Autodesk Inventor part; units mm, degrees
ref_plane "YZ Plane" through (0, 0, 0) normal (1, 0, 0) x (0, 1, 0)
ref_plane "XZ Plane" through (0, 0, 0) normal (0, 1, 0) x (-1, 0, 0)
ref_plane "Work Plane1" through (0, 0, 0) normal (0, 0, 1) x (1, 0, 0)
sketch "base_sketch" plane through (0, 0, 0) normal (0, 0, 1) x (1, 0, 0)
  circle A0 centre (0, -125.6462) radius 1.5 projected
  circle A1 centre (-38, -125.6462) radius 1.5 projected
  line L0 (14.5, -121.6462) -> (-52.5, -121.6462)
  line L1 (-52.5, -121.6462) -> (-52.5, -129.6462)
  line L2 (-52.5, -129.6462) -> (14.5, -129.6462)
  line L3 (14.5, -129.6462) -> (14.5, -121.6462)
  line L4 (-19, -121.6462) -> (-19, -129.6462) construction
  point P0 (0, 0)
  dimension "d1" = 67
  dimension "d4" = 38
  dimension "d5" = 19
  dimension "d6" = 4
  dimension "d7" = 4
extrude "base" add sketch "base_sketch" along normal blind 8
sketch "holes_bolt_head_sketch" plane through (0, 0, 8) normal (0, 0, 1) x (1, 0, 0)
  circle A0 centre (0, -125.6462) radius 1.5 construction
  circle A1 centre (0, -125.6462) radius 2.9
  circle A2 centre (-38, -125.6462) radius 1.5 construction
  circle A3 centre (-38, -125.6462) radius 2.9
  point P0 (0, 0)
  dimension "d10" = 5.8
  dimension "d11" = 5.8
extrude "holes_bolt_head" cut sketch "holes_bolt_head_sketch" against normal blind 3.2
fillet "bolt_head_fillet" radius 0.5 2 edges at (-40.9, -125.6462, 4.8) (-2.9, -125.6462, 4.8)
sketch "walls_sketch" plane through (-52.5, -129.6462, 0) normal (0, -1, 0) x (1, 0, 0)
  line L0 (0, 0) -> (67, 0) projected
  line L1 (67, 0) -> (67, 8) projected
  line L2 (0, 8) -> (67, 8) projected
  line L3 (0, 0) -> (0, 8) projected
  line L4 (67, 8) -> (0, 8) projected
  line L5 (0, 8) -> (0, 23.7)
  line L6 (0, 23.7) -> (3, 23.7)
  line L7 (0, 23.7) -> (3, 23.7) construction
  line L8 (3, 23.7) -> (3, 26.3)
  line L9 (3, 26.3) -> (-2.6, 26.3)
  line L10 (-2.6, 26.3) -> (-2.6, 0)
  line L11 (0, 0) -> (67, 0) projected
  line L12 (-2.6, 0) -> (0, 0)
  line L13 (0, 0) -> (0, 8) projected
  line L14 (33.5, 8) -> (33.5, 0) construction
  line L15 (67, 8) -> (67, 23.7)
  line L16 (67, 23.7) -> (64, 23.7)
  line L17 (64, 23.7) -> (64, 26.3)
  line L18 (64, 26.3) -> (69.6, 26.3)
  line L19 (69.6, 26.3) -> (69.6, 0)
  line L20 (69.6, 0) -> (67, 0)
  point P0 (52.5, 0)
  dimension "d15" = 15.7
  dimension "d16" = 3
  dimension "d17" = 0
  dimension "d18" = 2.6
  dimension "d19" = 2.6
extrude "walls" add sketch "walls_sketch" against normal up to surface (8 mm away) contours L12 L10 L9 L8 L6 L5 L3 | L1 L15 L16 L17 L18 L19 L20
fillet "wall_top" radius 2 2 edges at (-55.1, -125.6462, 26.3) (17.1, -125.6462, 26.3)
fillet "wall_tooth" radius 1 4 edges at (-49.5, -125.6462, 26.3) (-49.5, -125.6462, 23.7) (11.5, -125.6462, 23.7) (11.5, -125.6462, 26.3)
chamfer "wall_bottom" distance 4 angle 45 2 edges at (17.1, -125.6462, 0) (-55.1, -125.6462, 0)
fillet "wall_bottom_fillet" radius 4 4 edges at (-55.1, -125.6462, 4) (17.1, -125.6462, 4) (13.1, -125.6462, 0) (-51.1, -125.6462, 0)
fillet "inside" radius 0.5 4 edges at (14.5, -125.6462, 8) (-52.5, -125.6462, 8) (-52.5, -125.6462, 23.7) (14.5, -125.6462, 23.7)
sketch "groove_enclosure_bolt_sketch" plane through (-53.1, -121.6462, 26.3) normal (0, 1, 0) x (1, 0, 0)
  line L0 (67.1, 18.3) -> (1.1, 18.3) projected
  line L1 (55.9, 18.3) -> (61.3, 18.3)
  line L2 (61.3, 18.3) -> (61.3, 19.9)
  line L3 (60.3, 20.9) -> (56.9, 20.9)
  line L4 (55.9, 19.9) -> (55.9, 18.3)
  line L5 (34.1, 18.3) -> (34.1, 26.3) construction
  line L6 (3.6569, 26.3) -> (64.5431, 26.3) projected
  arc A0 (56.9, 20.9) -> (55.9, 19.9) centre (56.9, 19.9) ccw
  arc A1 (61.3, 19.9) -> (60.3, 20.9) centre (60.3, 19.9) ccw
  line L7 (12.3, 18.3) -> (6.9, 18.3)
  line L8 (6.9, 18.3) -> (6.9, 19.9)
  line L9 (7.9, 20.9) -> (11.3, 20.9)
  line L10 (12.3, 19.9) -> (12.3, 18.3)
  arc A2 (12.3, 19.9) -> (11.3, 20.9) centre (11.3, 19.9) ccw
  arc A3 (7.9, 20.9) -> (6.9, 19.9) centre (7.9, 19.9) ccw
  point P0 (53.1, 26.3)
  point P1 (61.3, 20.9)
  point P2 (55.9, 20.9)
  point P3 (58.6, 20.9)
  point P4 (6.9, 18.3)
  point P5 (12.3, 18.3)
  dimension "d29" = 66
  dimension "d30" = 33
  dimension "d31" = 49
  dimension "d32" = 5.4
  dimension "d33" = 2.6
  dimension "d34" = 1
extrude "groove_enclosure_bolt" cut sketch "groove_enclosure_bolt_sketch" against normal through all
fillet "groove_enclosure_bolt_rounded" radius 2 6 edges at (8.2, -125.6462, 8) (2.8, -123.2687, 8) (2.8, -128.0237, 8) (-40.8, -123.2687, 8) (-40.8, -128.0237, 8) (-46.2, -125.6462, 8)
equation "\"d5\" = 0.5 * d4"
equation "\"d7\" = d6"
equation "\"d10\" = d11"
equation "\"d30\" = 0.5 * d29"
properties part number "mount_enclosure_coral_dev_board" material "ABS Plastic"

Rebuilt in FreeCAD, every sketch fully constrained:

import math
import FreeCAD as App
import Part
import Sketcher
from FreeCAD import Vector
Q = App.Units.Quantity


def edges_at(feature, points):
    """Names of the edges that pass closest to the given points."""
    edges = feature.Shape.Edges
    near = lambda p: min(range(len(edges)), key=lambda i: edges[i].distToShape(Part.Vertex(*p))[0])
    return sorted({f"Edge{near(p) + 1}" for p in points})


def add_polygon(sketch, points):
    """Adds a closed chain of lines whose ends are joined by coincident constraints."""
    first, n = sketch.GeometryCount, len(points)
    for a, b in zip(points, points[1:] + points[:1]):
        sketch.addGeometry(Part.LineSegment(App.Vector(*a, 0), App.Vector(*b, 0)), False)
    for i in range(n):
        sketch.addConstraint(Sketcher.Constraint("Coincident", first + i, 2, first + (i + 1) % n, 1))

doc = App.newDocument("Part")
body = doc.addObject("PartDesign::Body", "Body")

# Sketch on XY plane
sketch1 = body.newObject("Sketcher::SketchObject", "Sketch")
sketch1.AttachmentSupport = (doc.getObject("XY_Plane"), [""])
sketch1.MapMode = "FlatFace"
add_polygon(sketch1, [(14.5, -129.6), (14.5, -121.6), (-52.5, -121.6), (-52.5, -129.6)])  # lines 0-3
sketch1.addGeometry(Part.Circle(Vector(-38, -125.6, 0), Vector(0, 0, 1), 1.5), False)  # 4
sketch1.addGeometry(Part.Circle(Vector(0, -125.6, 0), Vector(0, 0, 1), 1.5), False)  # 5
sketch1.addConstraint([
    Sketcher.Constraint("Vertical", 0),
    Sketcher.Constraint("Horizontal", 1),
    Sketcher.Constraint("Vertical", 2),
    Sketcher.Constraint("Horizontal", 3),
    Sketcher.Constraint("Equal", 4, 5),
    Sketcher.Constraint("PointOnObject", 5, 3, -2),
    Sketcher.Constraint("Horizontal", 4, 3, 5, 3),
    Sketcher.Constraint("DistanceX", 1, 2, 1, 1, Q("67 mm")),
    Sketcher.Constraint("Diameter", 4, Q("3 mm")),
    Sketcher.Constraint("DistanceX", 4, 3, -1, 1, Q("38 mm")),
    Sketcher.Constraint("DistanceY", 5, 3, 0, 2, Q("4 mm")),
    Sketcher.Constraint("DistanceY", 2, 2, 4, 3, Q("4 mm")),
    Sketcher.Constraint("DistanceX", -1, 1, 0, 2, Q("14.5 mm")),
    Sketcher.Constraint("DistanceY", 4, 3, -1, 1, Q("125.6462 mm")),
])
pad1 = body.newObject("PartDesign::Pad", "Pad")
pad1.Profile = sketch1
pad1.Length = 8

# Sketch on XY plane
sketch2 = body.newObject("Sketcher::SketchObject", "Sketch001")
sketch2.AttachmentSupport = (doc.getObject("XY_Plane"), [""])
sketch2.MapMode = "FlatFace"
sketch2.AttachmentOffset = App.Placement(Vector(0, 0, 8), App.Rotation())
sketch2.addGeometry([
    Part.Circle(Vector(0, -125.6, 0), Vector(0, 0, 1), 2.9),
    Part.Circle(Vector(-38, -125.6, 0), Vector(0, 0, 1), 2.9),
], False)
sketch2.addConstraint([
    Sketcher.Constraint("Equal", 0, 1),
    Sketcher.Constraint("PointOnObject", 0, 3, -2),
    Sketcher.Constraint("Horizontal", 0, 3, 1, 3),
    Sketcher.Constraint("Diameter", 0, Q("5.8 mm")),
    Sketcher.Constraint("DistanceX", 1, 3, -1, 1, Q("38 mm")),
    Sketcher.Constraint("DistanceY", 0, 3, -1, 1, Q("125.6462 mm")),
])
pocket1 = body.newObject("PartDesign::Pocket", "Pocket")
pocket1.Profile = sketch2
pocket1.Length = 3.2
doc.recompute()

fillet = body.newObject("PartDesign::Fillet", "Fillet")
fillet.Base = (pocket1, edges_at(pocket1, [(-40.9, -125.646, 4.8), (-2.9, -125.646, 4.8)]))
fillet.Radius = 0.5

# Sketch on XZ plane
sketch3 = body.newObject("Sketcher::SketchObject", "Sketch002")
sketch3.AttachmentSupport = (doc.getObject("XZ_Plane"), [""])
sketch3.MapMode = "FlatFace"
sketch3.AttachmentOffset = App.Placement(Vector(0, 0, 129.6462), App.Rotation())
add_polygon(sketch3, [(-55.1, 0), (-52.5, 0), (-52.5, 23.7), (-49.5, 23.7), (-49.5, 26.3), (-55.1, 26.3)])  # lines 0-5
add_polygon(sketch3, [(14.5, 23.7), (14.5, 0), (17.1, 0), (17.1, 26.3), (11.5, 26.3), (11.5, 23.7)])  # lines 6-11
sketch3.addConstraint([
    Sketcher.Constraint("Horizontal", 0),
    Sketcher.Constraint("Vertical", 1),
    Sketcher.Constraint("Horizontal", 2),
    Sketcher.Constraint("Vertical", 3),
    Sketcher.Constraint("Horizontal", 4),
    Sketcher.Constraint("Vertical", 5),
    Sketcher.Constraint("Vertical", 6),
    Sketcher.Constraint("Horizontal", 7),
    Sketcher.Constraint("Vertical", 8),
    Sketcher.Constraint("Horizontal", 9),
    Sketcher.Constraint("Vertical", 10),
    Sketcher.Constraint("Horizontal", 11),
    Sketcher.Constraint("PointOnObject", 0, 2, -1),
    Sketcher.Constraint("PointOnObject", 6, 2, -1),
    Sketcher.Constraint("Horizontal", 4, 2, 8, 2),
    Sketcher.Constraint("Horizontal", 2, 2, 10, 2),
    Sketcher.Constraint("Equal", 0, 7),
    Sketcher.Constraint("Equal", 4, 9),
    Sketcher.Constraint("Equal", 7, 3),
    Sketcher.Constraint("DistanceX", 2, 1, 2, 2, Q("3 mm")),
    Sketcher.Constraint("DistanceX", 0, 1, 0, 2, Q("2.6 mm")),
    Sketcher.Constraint("DistanceY", 1, 1, 1, 2, Q("23.7 mm")),
    Sketcher.Constraint("DistanceX", 0, 2, 6, 2, Q("67 mm")),
    Sketcher.Constraint("DistanceX", 0, 2, -1, 1, Q("52.5 mm")),
])
pad2 = body.newObject("PartDesign::Pad", "Pad001")
pad2.Profile = sketch3
pad2.Length = 8
pad2.Reversed = True
doc.recompute()

fillet2 = body.newObject("PartDesign::Fillet", "Fillet001")
fillet2.Base = (pad2, edges_at(pad2, [(-55.1, -125.646, 26.3), (17.1, -125.646, 26.3)]))
fillet2.Radius = 2
doc.recompute()

fillet3 = body.newObject("PartDesign::Fillet", "Fillet002")
fillet3.Base = (fillet2, edges_at(fillet2, [
    (-49.5, -125.646, 26.3),
    (-49.5, -125.646, 23.7),
    (11.5, -125.646, 23.7),
    (11.5, -125.646, 26.3),
]))
fillet3.Radius = 1
doc.recompute()

chamfer = body.newObject("PartDesign::Chamfer", "Chamfer")
chamfer.Base = (fillet3, edges_at(fillet3, [(17.1, -125.646, 0), (-55.1, -125.646, 0)]))
chamfer.Size = 4
doc.recompute()

fillet4 = body.newObject("PartDesign::Fillet", "Fillet003")
fillet4.Base = (chamfer, edges_at(chamfer, [
    (-55.1, -125.646, 4),
    (17.1, -125.646, 4),
    (13.1, -125.646, 0),
    (-51.1, -125.646, 0),
]))
fillet4.Radius = 4
doc.recompute()

fillet5 = body.newObject("PartDesign::Fillet", "Fillet004")
fillet5.Base = (fillet4, edges_at(fillet4, [
    (14.5, -125.646, 8),
    (-52.5, -125.646, 8),
    (-52.5, -125.646, 23.7),
    (14.5, -125.646, 23.7),
]))
fillet5.Radius = 0.5

# Sketch on XZ plane
sketch4 = body.newObject("Sketcher::SketchObject", "Sketch003")
sketch4.AttachmentSupport = (doc.getObject("XZ_Plane"), [""])
sketch4.MapMode = "FlatFace"
sketch4.AttachmentOffset = App.Placement(Vector(0, 0, 121.6462), App.Rotation())
sketch4.addGeometry([
    Part.LineSegment(Vector(-46.2, 8, 0), Vector(-40.8, 8, 0)),  # 0
    Part.LineSegment(Vector(-40.8, 8, 0), Vector(-40.8, 6.4, 0)),  # 1
    Part.ArcOfCircle(Part.Circle(Vector(-41.8, 6.4, 0), Vector(0, 0, 1), 1), math.radians(-90), math.radians(0)),  # 2
    Part.LineSegment(Vector(-41.8, 5.4, 0), Vector(-45.2, 5.4, 0)),  # 3
    Part.ArcOfCircle(Part.Circle(Vector(-45.2, 6.4, 0), Vector(0, 0, 1), 1), math.radians(180), math.radians(270)),  # 4
    Part.LineSegment(Vector(-46.2, 6.4, 0), Vector(-46.2, 8, 0)),  # 5
    Part.LineSegment(Vector(2.8, 8, 0), Vector(8.2, 8, 0)),  # 6
    Part.LineSegment(Vector(8.2, 8, 0), Vector(8.2, 6.4, 0)),  # 7
    Part.ArcOfCircle(Part.Circle(Vector(7.2, 6.4, 0), Vector(0, 0, 1), 1), math.radians(-90), math.radians(0)),  # 8
    Part.LineSegment(Vector(7.2, 5.4, 0), Vector(3.8, 5.4, 0)),  # 9
    Part.ArcOfCircle(Part.Circle(Vector(3.8, 6.4, 0), Vector(0, 0, 1), 1), math.radians(180), math.radians(270)),  # 10
    Part.LineSegment(Vector(2.8, 6.4, 0), Vector(2.8, 8, 0)),  # 11
], False)
sketch4.addConstraint([
    Sketcher.Constraint("Coincident", 0, 2, 1, 1),
    Sketcher.Constraint("Tangent", 1, 2, 2, 2),
    Sketcher.Constraint("Tangent", 2, 1, 3, 1),
    Sketcher.Constraint("Tangent", 3, 2, 4, 2),
    Sketcher.Constraint("Tangent", 4, 1, 5, 1),
    Sketcher.Constraint("Coincident", 5, 2, 0, 1),
    Sketcher.Constraint("Coincident", 6, 2, 7, 1),
    Sketcher.Constraint("Tangent", 7, 2, 8, 2),
    Sketcher.Constraint("Tangent", 8, 1, 9, 1),
    Sketcher.Constraint("Tangent", 9, 2, 10, 2),
    Sketcher.Constraint("Tangent", 10, 1, 11, 1),
    Sketcher.Constraint("Coincident", 11, 2, 6, 1),
    Sketcher.Constraint("Horizontal", 0),
    Sketcher.Constraint("Vertical", 1),
    Sketcher.Constraint("Horizontal", 3),
    Sketcher.Constraint("Vertical", 5),
    Sketcher.Constraint("Horizontal", 6),
    Sketcher.Constraint("Vertical", 7),
    Sketcher.Constraint("Horizontal", 9),
    Sketcher.Constraint("Vertical", 11),
    Sketcher.Constraint("Equal", 2, 4),
    Sketcher.Constraint("Equal", 4, 8),
    Sketcher.Constraint("Equal", 8, 10),
    Sketcher.Constraint("Horizontal", 4, 3, 8, 3),
    Sketcher.Constraint("Horizontal", 5, 2, 6, 2),
    Sketcher.Constraint("Equal", 0, 6),
    Sketcher.Constraint("Radius", 2, Q("1 mm")),
    Sketcher.Constraint("DistanceX", 0, 1, 0, 2, Q("5.4 mm")),
    Sketcher.Constraint("DistanceX", 2, 3, 8, 3, Q("49 mm")),
    Sketcher.Constraint("DistanceY", -1, 1, 2, 1, Q("5.4 mm")),
    Sketcher.Constraint("DistanceY", 2, 1, 0, 2, Q("2.6 mm")),
    Sketcher.Constraint("DistanceX", 2, 3, -1, 1, Q("41.8 mm")),
])
pocket2 = body.newObject("PartDesign::Pocket", "Pocket001")
pocket2.Profile = sketch4
pocket2.Type = "ThroughAll"
pocket2.Reversed = True
doc.recompute()

fillet6 = body.newObject("PartDesign::Fillet", "Fillet005")
fillet6.Base = (pocket2, edges_at(pocket2, [
    (8.2, -125.646, 8),
    (2.8, -123.269, 8),
    (2.8, -128.024, 8),
    (-40.8, -123.269, 8),
    (-40.8, -128.024, 8),
    (-46.2, -125.646, 8),
]))
fillet6.Radius = 2

doc.recompute()
